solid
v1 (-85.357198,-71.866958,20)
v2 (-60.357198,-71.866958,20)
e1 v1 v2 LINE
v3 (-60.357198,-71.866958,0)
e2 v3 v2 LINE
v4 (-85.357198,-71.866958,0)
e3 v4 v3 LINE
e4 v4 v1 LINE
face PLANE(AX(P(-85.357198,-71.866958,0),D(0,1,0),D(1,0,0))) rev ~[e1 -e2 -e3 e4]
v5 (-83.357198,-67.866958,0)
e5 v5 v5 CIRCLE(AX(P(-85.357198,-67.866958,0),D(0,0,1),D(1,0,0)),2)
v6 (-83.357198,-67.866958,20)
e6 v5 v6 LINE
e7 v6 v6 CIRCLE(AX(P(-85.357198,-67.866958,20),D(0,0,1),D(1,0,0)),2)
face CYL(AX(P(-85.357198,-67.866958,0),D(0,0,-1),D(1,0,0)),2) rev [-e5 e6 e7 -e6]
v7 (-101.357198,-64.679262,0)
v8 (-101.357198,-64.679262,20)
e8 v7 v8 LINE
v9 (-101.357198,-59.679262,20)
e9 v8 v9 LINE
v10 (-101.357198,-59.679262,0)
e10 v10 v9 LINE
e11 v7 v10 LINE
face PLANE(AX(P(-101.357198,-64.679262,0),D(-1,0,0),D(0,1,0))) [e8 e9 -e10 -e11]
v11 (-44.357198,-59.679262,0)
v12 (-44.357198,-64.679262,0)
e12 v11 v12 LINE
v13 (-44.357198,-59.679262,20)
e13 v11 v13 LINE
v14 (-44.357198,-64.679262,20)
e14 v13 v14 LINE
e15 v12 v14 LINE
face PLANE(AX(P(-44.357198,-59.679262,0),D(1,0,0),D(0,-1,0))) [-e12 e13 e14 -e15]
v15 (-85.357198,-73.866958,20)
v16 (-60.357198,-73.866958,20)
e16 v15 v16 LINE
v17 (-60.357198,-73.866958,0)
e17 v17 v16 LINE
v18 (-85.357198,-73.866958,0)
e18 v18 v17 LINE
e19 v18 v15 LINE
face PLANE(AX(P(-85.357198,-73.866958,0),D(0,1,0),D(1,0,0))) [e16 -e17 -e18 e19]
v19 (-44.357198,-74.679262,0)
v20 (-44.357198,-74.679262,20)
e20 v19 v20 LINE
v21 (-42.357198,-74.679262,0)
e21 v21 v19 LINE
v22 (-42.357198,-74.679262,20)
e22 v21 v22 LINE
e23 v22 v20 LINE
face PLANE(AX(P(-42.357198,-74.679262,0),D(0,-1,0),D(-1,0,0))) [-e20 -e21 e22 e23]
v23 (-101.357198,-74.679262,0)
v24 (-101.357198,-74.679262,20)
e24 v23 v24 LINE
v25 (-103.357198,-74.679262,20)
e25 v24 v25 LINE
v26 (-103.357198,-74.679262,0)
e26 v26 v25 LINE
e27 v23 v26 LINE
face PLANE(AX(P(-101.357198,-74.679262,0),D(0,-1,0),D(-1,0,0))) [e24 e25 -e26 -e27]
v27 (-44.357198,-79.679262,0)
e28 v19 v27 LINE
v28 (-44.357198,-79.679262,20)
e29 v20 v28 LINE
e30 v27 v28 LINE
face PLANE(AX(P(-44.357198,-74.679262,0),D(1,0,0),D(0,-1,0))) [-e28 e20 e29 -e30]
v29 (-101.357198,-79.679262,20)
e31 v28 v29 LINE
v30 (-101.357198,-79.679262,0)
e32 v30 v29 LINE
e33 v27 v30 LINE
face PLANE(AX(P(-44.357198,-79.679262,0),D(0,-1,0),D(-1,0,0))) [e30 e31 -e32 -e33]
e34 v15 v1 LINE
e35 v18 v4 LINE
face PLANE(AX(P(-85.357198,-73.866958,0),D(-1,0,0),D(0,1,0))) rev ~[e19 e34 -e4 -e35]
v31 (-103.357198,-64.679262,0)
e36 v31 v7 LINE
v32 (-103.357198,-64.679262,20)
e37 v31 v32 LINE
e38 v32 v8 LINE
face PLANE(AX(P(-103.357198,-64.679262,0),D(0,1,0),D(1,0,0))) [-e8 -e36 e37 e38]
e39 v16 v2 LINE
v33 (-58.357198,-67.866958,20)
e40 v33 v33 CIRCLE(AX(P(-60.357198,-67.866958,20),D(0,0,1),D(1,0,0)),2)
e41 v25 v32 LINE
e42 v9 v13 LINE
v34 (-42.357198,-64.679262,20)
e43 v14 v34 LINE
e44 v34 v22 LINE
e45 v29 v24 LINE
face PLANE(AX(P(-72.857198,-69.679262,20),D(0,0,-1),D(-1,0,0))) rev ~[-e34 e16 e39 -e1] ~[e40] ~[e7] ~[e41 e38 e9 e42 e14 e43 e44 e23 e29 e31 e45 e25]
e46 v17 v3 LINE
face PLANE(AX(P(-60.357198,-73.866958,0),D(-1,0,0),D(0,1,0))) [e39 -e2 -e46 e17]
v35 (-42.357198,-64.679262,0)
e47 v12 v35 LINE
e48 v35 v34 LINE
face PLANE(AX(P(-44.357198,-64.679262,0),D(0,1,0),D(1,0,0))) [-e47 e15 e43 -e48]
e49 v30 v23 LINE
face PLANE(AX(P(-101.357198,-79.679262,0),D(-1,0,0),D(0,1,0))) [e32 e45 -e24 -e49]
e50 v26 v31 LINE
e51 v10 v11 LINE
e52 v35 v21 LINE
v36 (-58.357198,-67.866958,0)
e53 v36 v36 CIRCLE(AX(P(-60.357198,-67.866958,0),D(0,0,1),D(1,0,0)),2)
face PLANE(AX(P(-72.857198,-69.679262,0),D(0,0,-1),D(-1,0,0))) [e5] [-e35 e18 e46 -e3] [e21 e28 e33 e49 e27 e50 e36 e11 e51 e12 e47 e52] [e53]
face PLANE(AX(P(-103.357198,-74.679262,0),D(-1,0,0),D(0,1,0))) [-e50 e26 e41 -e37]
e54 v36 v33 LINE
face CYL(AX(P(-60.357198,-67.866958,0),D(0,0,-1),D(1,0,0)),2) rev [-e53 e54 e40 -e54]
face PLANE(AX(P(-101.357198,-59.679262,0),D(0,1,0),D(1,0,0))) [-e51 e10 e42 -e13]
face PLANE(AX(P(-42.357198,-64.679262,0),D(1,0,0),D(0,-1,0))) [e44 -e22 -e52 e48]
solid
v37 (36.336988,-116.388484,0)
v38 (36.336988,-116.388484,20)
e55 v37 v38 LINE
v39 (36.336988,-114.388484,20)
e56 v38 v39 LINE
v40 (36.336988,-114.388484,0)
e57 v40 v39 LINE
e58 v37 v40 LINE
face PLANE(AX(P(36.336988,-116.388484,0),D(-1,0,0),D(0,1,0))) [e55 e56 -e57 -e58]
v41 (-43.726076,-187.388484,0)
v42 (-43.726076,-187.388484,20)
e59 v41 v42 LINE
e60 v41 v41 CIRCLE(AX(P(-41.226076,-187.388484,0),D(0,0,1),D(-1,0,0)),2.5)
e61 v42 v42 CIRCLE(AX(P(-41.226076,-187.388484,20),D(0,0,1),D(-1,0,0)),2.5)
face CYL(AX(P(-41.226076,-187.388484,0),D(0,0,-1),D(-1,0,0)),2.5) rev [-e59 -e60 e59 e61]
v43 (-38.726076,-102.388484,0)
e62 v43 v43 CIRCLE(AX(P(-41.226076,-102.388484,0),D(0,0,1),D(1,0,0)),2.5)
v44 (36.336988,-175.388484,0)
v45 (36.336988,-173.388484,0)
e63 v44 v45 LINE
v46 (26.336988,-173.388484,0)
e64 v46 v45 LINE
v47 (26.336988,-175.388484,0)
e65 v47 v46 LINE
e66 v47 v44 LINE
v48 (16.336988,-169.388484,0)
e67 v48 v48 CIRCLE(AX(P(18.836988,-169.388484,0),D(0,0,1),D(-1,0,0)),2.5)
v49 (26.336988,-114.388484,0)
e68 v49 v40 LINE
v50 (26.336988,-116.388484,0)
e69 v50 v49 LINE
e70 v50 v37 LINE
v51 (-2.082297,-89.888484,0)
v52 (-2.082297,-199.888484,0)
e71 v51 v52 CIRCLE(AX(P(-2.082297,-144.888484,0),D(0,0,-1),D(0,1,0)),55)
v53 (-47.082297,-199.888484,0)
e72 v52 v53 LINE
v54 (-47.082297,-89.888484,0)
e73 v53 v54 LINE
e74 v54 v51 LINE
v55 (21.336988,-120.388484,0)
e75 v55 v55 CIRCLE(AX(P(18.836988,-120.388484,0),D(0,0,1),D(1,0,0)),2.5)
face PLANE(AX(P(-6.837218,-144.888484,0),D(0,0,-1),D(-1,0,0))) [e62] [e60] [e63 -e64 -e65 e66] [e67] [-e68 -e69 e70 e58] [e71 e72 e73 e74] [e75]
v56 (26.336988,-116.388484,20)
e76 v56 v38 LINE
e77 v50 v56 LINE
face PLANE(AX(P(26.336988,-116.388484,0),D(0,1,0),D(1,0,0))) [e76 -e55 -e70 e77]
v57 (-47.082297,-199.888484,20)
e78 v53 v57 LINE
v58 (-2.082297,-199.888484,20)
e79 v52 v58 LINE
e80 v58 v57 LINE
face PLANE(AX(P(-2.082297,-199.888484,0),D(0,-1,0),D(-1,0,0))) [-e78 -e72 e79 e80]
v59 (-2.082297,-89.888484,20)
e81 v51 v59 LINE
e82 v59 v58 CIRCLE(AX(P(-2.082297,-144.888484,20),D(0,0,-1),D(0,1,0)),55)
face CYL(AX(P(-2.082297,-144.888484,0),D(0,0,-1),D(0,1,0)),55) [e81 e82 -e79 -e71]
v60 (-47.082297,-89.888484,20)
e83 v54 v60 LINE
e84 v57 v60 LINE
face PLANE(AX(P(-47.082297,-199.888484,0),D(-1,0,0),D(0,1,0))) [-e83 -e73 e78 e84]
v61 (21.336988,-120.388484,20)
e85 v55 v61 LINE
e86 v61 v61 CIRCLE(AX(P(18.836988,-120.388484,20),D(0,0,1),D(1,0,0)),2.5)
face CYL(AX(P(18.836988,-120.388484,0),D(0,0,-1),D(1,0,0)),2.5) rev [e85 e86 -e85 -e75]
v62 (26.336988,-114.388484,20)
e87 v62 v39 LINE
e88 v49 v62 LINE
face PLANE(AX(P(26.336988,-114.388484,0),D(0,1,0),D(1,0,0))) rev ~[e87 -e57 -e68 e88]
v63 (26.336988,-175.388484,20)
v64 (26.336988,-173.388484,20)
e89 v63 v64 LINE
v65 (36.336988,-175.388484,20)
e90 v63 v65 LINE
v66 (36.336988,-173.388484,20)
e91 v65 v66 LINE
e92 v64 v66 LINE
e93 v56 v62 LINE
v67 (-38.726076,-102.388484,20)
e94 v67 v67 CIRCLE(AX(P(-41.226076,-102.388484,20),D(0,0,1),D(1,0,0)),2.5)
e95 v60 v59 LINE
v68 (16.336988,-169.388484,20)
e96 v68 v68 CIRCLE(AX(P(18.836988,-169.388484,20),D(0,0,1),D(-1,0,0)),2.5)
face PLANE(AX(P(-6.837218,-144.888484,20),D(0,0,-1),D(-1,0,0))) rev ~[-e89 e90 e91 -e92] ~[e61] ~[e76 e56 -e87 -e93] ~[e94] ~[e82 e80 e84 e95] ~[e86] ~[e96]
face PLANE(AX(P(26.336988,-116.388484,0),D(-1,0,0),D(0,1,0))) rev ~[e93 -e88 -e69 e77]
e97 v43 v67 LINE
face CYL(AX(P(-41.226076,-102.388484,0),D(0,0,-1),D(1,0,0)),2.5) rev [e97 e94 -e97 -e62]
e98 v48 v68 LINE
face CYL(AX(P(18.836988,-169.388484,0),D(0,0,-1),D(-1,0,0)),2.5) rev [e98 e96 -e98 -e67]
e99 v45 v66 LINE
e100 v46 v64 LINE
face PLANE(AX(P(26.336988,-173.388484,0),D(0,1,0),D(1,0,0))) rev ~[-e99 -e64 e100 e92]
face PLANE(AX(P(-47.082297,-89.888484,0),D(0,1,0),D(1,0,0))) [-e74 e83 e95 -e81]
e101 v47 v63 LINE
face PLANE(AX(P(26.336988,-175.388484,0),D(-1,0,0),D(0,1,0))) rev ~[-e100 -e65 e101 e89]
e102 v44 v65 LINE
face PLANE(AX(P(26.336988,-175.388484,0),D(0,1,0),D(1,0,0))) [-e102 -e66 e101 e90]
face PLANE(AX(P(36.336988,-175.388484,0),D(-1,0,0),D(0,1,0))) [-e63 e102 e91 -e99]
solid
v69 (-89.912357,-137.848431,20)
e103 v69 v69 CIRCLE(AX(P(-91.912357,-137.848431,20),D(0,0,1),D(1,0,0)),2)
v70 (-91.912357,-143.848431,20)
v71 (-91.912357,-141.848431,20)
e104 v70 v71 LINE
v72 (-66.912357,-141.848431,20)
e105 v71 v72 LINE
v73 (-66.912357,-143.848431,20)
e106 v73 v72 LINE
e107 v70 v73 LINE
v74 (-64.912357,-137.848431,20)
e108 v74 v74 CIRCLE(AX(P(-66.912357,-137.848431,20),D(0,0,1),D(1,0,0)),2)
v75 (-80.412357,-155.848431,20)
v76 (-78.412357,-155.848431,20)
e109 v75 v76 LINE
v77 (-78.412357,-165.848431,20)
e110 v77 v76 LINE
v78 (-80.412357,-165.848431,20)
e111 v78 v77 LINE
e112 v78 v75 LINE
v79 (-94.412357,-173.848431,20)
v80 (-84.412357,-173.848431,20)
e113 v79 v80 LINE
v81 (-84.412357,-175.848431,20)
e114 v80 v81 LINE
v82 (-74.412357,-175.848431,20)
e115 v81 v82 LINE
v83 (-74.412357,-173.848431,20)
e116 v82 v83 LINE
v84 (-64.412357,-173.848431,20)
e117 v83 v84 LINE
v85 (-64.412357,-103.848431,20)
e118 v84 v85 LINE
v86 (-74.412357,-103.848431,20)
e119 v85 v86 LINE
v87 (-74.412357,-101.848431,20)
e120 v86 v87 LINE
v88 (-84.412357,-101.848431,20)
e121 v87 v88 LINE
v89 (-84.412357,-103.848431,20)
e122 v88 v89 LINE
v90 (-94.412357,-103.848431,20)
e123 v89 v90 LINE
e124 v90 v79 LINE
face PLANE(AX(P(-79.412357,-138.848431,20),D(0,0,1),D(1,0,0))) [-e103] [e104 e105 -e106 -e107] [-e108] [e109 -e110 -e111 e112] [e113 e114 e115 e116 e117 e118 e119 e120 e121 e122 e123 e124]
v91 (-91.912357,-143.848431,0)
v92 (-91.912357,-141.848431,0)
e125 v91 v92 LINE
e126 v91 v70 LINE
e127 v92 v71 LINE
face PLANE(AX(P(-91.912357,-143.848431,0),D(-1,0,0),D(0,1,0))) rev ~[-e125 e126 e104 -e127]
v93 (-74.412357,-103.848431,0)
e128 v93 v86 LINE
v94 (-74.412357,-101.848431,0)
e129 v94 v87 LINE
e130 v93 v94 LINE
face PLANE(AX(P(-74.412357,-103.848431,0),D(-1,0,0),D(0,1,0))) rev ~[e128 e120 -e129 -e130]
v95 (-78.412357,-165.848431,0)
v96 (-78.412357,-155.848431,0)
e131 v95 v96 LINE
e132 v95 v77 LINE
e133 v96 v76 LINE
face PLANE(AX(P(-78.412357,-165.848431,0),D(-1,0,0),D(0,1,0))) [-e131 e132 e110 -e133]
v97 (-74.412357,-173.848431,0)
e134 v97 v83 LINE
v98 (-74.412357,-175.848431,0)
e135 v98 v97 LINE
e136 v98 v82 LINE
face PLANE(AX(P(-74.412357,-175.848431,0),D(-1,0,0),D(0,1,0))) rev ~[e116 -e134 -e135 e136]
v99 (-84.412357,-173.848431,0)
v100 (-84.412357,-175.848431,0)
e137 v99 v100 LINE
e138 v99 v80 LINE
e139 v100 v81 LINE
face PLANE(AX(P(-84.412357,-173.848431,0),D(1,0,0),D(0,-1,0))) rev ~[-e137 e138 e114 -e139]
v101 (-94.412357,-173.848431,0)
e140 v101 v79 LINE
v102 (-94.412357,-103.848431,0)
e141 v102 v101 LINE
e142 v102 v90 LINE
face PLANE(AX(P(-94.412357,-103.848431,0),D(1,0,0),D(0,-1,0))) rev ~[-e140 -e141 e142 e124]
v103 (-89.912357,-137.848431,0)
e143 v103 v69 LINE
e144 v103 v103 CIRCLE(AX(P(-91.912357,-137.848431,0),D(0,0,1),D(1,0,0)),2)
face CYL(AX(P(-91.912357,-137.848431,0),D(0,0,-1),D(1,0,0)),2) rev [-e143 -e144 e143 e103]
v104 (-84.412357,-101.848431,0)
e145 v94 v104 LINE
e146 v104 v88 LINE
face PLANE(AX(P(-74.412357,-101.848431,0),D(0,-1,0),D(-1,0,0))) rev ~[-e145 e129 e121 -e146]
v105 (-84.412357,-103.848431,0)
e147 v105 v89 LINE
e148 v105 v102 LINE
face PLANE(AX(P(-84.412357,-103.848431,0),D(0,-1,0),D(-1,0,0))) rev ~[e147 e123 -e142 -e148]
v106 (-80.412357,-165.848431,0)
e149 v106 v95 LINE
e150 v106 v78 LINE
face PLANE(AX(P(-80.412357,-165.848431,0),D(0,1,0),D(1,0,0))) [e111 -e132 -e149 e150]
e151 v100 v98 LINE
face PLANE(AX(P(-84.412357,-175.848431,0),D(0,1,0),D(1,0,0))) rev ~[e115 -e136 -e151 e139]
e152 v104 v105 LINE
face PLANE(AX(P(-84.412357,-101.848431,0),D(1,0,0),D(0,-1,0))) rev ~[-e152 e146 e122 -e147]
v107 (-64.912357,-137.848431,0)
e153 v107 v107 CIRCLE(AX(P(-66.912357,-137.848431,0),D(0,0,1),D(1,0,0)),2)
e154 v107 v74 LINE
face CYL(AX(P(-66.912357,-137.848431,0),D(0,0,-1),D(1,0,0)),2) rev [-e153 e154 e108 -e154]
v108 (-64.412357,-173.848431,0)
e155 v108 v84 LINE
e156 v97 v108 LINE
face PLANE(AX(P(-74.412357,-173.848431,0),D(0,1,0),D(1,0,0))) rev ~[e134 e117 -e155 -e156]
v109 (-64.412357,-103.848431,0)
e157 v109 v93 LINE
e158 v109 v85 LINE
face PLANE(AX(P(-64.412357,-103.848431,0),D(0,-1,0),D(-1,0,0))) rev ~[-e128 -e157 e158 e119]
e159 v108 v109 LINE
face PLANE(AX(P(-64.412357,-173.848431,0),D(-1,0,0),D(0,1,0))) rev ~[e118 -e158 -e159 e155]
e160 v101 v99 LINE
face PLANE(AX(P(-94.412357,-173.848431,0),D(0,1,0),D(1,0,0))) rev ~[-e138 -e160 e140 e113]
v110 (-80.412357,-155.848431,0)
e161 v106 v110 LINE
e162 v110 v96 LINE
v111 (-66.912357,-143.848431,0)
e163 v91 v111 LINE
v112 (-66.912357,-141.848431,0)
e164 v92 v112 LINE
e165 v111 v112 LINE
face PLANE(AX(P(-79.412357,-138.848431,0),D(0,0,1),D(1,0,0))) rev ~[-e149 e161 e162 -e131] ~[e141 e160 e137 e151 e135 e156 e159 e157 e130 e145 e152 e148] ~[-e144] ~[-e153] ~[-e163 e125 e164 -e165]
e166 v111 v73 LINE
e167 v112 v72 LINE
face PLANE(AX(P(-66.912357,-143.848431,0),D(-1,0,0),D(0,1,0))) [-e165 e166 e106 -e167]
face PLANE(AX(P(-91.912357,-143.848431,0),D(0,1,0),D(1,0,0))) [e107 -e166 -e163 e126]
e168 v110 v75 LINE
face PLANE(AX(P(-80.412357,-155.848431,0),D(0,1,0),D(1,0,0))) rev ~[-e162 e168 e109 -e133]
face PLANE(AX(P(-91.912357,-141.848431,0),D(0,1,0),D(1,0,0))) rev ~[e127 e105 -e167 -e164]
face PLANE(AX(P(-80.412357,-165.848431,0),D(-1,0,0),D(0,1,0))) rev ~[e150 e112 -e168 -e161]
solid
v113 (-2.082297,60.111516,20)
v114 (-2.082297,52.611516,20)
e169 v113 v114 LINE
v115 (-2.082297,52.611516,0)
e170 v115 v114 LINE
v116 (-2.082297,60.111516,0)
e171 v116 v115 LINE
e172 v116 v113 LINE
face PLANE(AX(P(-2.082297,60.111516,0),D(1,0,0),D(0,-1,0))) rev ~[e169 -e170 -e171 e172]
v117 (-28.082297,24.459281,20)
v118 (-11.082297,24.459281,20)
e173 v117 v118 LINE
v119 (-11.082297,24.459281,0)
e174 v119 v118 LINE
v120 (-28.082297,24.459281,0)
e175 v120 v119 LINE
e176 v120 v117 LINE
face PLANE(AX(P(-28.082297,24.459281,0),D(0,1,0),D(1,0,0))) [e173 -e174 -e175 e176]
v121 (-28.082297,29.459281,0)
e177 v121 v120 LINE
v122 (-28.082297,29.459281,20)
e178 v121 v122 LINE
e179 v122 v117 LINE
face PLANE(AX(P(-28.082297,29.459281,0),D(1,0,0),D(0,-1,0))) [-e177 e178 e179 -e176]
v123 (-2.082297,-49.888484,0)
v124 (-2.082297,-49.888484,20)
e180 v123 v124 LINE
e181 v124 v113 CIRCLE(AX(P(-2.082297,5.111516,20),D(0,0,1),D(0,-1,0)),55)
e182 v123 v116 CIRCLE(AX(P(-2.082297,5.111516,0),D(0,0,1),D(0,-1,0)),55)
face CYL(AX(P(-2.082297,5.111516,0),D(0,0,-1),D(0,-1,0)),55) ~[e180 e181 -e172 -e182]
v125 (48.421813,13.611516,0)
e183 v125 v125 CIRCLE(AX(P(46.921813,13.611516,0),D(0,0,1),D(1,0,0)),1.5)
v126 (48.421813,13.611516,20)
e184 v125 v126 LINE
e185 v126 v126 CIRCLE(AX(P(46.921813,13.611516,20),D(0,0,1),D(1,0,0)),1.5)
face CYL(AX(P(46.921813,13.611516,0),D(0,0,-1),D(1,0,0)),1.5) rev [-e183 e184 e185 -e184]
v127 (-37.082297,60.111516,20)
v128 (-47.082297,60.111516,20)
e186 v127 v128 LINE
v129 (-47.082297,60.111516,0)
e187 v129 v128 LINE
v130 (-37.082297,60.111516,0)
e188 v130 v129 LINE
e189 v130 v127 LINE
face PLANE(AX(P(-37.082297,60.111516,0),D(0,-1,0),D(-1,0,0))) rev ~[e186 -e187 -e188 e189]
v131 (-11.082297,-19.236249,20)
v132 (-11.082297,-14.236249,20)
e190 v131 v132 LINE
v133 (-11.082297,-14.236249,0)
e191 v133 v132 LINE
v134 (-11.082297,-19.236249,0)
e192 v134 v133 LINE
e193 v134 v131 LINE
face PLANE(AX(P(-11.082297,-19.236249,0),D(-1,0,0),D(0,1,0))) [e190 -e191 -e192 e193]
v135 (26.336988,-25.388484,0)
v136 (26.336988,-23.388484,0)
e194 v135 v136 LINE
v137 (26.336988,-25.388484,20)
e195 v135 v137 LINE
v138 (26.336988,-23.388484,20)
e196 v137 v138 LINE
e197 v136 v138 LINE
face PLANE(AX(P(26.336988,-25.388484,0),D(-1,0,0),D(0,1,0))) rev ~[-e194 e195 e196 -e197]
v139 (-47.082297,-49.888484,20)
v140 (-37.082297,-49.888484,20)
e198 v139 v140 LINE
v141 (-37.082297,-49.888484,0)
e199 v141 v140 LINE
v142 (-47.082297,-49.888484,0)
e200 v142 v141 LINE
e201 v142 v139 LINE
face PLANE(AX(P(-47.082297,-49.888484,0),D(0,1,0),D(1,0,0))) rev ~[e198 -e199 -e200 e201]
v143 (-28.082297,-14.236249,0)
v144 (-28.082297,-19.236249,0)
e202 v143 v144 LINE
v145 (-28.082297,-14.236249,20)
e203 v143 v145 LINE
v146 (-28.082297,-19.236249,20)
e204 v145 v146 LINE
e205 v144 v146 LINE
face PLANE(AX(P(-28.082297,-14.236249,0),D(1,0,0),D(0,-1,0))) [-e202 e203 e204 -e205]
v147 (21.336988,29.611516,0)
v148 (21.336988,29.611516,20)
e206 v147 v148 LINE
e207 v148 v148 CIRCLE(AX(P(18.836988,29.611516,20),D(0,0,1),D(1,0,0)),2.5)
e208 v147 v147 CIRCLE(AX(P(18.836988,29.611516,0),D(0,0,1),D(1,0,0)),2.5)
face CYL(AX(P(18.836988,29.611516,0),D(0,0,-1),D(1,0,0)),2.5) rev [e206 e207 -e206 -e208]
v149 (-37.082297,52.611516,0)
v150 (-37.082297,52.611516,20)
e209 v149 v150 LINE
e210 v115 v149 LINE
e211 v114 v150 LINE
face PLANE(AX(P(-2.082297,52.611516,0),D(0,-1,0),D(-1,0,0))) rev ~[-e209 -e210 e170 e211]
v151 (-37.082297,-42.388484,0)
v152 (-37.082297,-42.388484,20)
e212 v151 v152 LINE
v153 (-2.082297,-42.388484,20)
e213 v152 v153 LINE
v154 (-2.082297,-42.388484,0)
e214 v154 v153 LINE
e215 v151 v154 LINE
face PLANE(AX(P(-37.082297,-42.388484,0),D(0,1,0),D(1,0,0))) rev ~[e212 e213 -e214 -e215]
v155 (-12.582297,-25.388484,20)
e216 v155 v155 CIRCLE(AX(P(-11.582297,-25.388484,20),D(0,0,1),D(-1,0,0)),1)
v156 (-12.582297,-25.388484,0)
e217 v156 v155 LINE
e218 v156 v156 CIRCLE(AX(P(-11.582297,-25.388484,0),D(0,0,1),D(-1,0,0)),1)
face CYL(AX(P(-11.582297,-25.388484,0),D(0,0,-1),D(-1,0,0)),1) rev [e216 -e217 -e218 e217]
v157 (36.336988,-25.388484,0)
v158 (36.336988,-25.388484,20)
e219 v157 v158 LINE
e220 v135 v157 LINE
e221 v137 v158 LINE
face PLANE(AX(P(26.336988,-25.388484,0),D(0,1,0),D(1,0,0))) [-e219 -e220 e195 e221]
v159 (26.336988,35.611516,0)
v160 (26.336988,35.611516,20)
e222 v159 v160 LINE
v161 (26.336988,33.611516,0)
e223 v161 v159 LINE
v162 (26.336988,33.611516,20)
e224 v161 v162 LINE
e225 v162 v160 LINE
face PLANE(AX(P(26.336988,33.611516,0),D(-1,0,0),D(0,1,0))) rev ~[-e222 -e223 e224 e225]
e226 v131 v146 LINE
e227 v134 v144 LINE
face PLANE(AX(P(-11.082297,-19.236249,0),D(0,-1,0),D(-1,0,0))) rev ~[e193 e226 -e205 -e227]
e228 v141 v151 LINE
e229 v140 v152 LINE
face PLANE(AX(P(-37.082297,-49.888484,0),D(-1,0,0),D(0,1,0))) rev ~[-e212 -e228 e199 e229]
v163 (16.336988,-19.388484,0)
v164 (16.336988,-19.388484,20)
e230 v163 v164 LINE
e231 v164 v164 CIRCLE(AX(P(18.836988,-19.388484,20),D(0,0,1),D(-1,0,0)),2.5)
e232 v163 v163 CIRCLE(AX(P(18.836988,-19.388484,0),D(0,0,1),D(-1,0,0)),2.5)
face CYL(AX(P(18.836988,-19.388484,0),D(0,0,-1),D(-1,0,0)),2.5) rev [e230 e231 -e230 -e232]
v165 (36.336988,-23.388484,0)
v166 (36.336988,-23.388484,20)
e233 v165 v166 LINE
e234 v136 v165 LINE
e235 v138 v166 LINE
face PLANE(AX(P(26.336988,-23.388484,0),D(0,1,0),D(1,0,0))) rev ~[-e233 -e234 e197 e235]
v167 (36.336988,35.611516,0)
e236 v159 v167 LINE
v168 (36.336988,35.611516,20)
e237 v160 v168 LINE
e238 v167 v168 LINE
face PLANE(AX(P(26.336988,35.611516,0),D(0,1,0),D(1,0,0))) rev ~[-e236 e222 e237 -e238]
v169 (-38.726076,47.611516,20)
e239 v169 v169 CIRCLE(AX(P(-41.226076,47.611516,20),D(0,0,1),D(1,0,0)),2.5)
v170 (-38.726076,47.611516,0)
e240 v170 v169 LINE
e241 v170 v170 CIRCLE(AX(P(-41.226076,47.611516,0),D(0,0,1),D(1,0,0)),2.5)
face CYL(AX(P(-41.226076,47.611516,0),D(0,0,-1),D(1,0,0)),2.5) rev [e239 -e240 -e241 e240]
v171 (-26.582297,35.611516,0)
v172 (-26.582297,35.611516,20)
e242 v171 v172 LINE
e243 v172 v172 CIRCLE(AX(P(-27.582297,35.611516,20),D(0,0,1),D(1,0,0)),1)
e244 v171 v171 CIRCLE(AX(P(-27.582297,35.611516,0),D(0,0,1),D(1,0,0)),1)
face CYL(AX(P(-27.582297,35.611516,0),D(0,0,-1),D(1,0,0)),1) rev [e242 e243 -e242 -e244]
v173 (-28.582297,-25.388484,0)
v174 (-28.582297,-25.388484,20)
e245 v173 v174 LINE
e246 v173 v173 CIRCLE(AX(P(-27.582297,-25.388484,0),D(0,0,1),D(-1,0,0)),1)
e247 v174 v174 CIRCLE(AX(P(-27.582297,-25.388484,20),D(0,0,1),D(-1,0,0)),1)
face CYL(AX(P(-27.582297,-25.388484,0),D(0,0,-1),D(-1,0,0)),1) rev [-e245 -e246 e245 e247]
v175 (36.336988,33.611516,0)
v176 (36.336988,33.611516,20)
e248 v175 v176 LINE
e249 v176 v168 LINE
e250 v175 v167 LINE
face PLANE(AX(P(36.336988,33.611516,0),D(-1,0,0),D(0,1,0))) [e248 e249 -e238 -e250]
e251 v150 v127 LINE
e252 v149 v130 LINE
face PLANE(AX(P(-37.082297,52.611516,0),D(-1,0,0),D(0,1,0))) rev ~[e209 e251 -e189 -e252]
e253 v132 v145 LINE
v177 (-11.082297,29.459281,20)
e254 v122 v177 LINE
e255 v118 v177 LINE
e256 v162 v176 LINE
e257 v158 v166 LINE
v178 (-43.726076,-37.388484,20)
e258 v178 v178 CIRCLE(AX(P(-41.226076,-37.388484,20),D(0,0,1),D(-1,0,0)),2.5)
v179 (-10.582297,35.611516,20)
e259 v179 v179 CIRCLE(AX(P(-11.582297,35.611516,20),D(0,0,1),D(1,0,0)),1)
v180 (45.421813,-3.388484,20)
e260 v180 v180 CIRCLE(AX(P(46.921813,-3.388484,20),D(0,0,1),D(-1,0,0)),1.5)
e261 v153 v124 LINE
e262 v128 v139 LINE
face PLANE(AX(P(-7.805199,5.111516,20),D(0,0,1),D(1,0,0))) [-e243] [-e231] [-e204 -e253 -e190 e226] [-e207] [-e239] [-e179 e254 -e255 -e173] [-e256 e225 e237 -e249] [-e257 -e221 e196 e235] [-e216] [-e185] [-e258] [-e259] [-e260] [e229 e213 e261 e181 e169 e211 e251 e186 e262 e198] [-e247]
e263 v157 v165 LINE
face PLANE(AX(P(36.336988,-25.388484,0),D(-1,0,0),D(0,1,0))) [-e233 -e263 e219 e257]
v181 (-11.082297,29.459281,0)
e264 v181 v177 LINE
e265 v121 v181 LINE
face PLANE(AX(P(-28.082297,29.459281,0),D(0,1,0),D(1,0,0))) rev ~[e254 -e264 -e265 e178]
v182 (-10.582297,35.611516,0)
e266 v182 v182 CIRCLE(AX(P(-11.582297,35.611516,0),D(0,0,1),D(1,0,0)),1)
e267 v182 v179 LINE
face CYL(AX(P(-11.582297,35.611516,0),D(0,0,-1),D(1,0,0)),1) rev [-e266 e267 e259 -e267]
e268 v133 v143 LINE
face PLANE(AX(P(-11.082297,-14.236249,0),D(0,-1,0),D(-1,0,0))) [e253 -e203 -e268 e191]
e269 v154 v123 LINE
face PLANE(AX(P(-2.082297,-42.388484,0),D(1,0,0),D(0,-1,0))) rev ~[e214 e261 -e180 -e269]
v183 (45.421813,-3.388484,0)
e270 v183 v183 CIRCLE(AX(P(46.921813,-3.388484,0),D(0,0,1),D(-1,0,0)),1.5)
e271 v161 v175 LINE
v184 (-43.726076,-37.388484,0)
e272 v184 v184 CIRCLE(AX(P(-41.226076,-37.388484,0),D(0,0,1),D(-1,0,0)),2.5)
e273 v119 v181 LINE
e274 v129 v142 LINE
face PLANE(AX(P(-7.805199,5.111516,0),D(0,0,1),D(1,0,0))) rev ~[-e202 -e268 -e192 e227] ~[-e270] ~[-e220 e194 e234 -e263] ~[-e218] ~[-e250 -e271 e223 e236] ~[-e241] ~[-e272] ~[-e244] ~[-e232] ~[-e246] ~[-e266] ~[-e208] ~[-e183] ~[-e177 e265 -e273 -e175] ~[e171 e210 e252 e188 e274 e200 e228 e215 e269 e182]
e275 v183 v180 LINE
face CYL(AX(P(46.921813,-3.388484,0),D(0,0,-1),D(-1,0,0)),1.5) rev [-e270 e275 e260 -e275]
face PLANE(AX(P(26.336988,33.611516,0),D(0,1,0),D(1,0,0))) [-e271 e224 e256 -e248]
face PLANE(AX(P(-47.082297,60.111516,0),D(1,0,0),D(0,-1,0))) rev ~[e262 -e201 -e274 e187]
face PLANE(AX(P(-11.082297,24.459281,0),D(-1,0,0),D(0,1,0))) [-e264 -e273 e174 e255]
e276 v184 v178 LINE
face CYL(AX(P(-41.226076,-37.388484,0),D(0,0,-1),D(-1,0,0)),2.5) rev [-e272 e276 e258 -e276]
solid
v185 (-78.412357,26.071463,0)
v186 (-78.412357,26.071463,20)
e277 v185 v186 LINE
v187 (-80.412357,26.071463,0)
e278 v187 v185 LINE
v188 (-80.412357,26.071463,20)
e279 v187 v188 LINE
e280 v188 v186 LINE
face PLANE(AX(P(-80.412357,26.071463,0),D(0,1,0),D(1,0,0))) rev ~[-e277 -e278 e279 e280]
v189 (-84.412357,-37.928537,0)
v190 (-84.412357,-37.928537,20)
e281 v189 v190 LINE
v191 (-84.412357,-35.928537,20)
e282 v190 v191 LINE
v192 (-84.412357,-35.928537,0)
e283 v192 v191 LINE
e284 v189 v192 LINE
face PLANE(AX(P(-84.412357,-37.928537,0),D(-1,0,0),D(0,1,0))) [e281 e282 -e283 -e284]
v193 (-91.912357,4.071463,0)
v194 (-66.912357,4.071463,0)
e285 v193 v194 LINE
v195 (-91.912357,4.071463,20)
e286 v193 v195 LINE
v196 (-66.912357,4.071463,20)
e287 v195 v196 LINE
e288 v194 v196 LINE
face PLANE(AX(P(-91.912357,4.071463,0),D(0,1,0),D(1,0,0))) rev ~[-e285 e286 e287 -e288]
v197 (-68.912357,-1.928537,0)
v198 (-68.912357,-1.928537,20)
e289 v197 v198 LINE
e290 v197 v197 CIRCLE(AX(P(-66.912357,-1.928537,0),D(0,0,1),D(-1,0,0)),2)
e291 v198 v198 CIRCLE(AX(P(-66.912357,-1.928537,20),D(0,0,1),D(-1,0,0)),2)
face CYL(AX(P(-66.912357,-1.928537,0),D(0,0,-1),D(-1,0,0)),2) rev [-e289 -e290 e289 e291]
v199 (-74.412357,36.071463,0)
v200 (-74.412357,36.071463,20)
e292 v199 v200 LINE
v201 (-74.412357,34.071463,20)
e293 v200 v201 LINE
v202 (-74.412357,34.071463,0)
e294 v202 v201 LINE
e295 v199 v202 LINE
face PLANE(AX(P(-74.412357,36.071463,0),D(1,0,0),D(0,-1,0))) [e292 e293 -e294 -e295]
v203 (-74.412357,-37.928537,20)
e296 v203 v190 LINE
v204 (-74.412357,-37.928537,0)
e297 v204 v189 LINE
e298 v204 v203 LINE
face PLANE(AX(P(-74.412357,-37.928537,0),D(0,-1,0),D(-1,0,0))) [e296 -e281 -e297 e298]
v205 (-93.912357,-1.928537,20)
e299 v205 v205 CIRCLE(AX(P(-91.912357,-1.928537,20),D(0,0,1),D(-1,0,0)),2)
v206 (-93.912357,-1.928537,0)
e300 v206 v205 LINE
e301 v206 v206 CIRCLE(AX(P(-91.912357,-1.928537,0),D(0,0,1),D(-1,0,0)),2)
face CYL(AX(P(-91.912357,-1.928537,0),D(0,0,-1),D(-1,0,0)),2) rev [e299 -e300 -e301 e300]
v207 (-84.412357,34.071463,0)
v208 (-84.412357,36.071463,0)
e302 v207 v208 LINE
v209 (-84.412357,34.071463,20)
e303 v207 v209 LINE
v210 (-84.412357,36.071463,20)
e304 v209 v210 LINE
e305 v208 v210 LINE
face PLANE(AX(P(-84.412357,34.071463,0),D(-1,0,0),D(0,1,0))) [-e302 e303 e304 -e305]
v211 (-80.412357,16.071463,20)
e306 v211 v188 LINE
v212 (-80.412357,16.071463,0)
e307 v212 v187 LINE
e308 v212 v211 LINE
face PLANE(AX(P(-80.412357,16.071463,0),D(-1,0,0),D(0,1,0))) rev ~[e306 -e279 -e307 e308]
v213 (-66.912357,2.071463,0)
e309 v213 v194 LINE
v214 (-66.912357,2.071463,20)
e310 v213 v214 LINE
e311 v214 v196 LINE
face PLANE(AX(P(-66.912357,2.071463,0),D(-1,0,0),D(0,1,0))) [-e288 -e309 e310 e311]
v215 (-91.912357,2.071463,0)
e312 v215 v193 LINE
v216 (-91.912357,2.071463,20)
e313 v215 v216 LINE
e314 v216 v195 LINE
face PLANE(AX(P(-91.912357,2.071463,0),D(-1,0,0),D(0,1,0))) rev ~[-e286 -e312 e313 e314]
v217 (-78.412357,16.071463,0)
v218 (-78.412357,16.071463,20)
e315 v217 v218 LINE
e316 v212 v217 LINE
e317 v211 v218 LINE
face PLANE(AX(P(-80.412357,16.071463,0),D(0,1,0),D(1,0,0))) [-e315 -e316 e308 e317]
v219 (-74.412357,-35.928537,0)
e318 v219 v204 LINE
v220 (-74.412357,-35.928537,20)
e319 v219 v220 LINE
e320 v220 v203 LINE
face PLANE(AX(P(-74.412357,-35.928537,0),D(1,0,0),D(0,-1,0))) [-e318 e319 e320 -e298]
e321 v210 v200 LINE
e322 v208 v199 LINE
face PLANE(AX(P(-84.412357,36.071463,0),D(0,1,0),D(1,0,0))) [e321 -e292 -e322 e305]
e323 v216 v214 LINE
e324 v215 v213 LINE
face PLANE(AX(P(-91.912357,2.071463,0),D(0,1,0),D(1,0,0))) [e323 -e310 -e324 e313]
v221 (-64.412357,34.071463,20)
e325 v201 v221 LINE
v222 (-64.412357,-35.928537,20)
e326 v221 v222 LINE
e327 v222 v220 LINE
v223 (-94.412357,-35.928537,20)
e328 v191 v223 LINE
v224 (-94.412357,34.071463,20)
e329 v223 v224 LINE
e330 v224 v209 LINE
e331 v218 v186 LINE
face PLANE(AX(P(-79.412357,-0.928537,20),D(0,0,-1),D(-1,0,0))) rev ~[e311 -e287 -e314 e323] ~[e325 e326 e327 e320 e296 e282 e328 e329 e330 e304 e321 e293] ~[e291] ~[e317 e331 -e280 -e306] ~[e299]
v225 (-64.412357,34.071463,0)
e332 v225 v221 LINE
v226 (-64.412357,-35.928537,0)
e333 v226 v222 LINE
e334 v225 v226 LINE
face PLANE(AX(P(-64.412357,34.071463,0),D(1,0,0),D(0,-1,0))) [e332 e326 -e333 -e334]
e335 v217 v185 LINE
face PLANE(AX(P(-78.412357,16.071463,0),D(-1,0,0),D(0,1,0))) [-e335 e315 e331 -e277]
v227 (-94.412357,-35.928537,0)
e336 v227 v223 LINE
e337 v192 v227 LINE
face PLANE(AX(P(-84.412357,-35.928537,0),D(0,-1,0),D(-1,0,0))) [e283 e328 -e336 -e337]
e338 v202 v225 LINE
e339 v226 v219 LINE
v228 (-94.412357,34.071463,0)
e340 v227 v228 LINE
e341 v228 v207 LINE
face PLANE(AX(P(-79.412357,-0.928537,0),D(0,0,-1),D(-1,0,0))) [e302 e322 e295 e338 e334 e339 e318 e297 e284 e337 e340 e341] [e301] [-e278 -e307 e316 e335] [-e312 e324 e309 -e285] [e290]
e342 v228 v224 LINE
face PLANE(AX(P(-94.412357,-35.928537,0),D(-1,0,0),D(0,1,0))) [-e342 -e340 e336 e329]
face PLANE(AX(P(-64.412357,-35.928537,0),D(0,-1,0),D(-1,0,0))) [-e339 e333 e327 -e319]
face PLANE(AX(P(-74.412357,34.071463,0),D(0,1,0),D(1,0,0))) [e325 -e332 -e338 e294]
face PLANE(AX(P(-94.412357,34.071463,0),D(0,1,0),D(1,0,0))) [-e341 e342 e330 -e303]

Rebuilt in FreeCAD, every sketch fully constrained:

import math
import FreeCAD as App
import Part
import Sketcher
from FreeCAD import Vector
Q = App.Units.Quantity


def add_polygon(sketch, points):
    """Adds a closed chain of lines whose ends are joined by coincident constraints."""
    first, n = sketch.GeometryCount, len(points)
    for a, b in zip(points, points[1:] + points[:1]):
        sketch.addGeometry(Part.LineSegment(App.Vector(*a, 0), App.Vector(*b, 0)), False)
    for i in range(n):
        sketch.addConstraint(Sketcher.Constraint("Coincident", first + i, 2, first + (i + 1) % n, 1))

doc = App.newDocument("Part")
body = doc.addObject("PartDesign::Body", "Body")

# Sketch on XY plane
sketch1 = doc.addObject("Sketcher::SketchObject", "Sketch")
body.addObject(sketch1)
sketch1.AttachmentSupport = (doc.XY_Plane, [""])
sketch1.MapMode = "FlatFace"
sketch1.addGeometry(Part.LineSegment(Vector(-47.082297, 60.111516, 0), Vector(-47.082297, -49.888484, 0)), False)  # 0
sketch1.addGeometry(Part.LineSegment(Vector(-47.082297, -49.888484, 0), Vector(-37.082297, -49.888484, 0)), False)  # 1
sketch1.addGeometry(Part.LineSegment(Vector(-37.082297, -49.888484, 0), Vector(-37.082297, -42.388484, 0)), False)  # 2
sketch1.addGeometry(Part.LineSegment(Vector(-37.082297, -42.388484, 0), Vector(-2.082297, -42.388484, 0)), False)  # 3
sketch1.addGeometry(Part.LineSegment(Vector(-2.082297, -42.388484, 0), Vector(-2.082297, -49.888484, 0)), False)  # 4
sketch1.addGeometry(Part.ArcOfCircle(Part.Circle(Vector(-2.082297, 5.111516, 0), Vector(0, 0, 1), 55), math.radians(-90), math.radians(90)), False)  # 5
sketch1.addGeometry(Part.LineSegment(Vector(-2.082297, 60.111516, 0), Vector(-2.082297, 52.611516, 0)), False)  # 6
sketch1.addGeometry(Part.LineSegment(Vector(-2.082297, 52.611516, 0), Vector(-37.082297, 52.611516, 0)), False)  # 7
sketch1.addGeometry(Part.LineSegment(Vector(-37.082297, 52.611516, 0), Vector(-37.082297, 60.111516, 0)), False)  # 8
sketch1.addGeometry(Part.LineSegment(Vector(-37.082297, 60.111516, 0), Vector(-47.082297, 60.111516, 0)), False)  # 9
sketch1.addGeometry(Part.Circle(Vector(-41.226076, -37.388484, 0), Vector(0, 0, 1), 2.5), False)  # 10
sketch1.addGeometry(Part.Circle(Vector(-27.582297, -25.388484, 0), Vector(0, 0, 1), 1), False)  # 11
sketch1.addGeometry(Part.Circle(Vector(-11.582297, -25.388484, 0), Vector(0, 0, 1), 1), False)  # 12
add_polygon(sketch1, [(-28.082297, -19.236249), (-28.082297, -14.236249), (-11.082297, -14.236249), (-11.082297, -19.236249)])  # lines 13-16
sketch1.addGeometry(Part.Circle(Vector(18.836988, -19.388484, 0), Vector(0, 0, 1), 2.5), False)  # 17
add_polygon(sketch1, [(36.336988, -25.388484), (26.336988, -25.388484), (26.336988, -23.388484), (36.336988, -23.388484)])  # lines 18-21
sketch1.addGeometry(Part.Circle(Vector(46.921813, -3.388484, 0), Vector(0, 0, 1), 1.5), False)  # 22
add_polygon(sketch1, [(-28.082297, 29.459281), (-11.082297, 29.459281), (-11.082297, 24.459281), (-28.082297, 24.459281)])  # lines 23-26
sketch1.addGeometry(Part.Circle(Vector(-27.582297, 35.611516, 0), Vector(0, 0, 1), 1), False)  # 27
sketch1.addGeometry(Part.Circle(Vector(-41.226076, 47.611516, 0), Vector(0, 0, 1), 2.5), False)  # 28
sketch1.addGeometry(Part.Circle(Vector(-11.582297, 35.611516, 0), Vector(0, 0, 1), 1), False)  # 29
sketch1.addGeometry(Part.Circle(Vector(46.921813, 13.611516, 0), Vector(0, 0, 1), 1.5), False)  # 30
sketch1.addGeometry(Part.Circle(Vector(18.836988, 29.611516, 0), Vector(0, 0, 1), 2.5), False)  # 31
add_polygon(sketch1, [(36.336988, 33.611516), (26.336988, 33.611516), (26.336988, 35.611516), (36.336988, 35.611516)])  # lines 32-35
sketch1.addConstraint([
    Sketcher.Constraint("Coincident", 0, 2, 1, 1),
    Sketcher.Constraint("Coincident", 1, 2, 2, 1),
    Sketcher.Constraint("Coincident", 2, 2, 3, 1),
    Sketcher.Constraint("Coincident", 3, 2, 4, 1),
    Sketcher.Constraint("Coincident", 4, 2, 5, 1),
    Sketcher.Constraint("Coincident", 5, 2, 6, 1),
    Sketcher.Constraint("Coincident", 6, 2, 7, 1),
    Sketcher.Constraint("Coincident", 7, 2, 8, 1),
    Sketcher.Constraint("Coincident", 8, 2, 9, 1),
    Sketcher.Constraint("Coincident", 9, 2, 0, 1),
    Sketcher.Constraint("Vertical", 0),
    Sketcher.Constraint("Horizontal", 1),
    Sketcher.Constraint("Vertical", 2),
    Sketcher.Constraint("Horizontal", 3),
    Sketcher.Constraint("Vertical", 4),
    Sketcher.Constraint("Vertical", 6),
    Sketcher.Constraint("Horizontal", 7),
    Sketcher.Constraint("Vertical", 8),
    Sketcher.Constraint("Horizontal", 9),
    Sketcher.Constraint("Vertical", 13),
    Sketcher.Constraint("Horizontal", 14),
    Sketcher.Constraint("Vertical", 15),
    Sketcher.Constraint("Horizontal", 16),
    Sketcher.Constraint("Horizontal", 18),
    Sketcher.Constraint("Vertical", 19),
    Sketcher.Constraint("Horizontal", 20),
    Sketcher.Constraint("Vertical", 21),
    Sketcher.Constraint("Horizontal", 23),
    Sketcher.Constraint("Vertical", 24),
    Sketcher.Constraint("Horizontal", 25),
    Sketcher.Constraint("Vertical", 26),
    Sketcher.Constraint("Horizontal", 32),
    Sketcher.Constraint("Vertical", 33),
    Sketcher.Constraint("Horizontal", 34),
    Sketcher.Constraint("Vertical", 35),
    Sketcher.Constraint("Equal", 11, 12),
    Sketcher.Constraint("Equal", 10, 17),
    Sketcher.Constraint("Equal", 12, 27),
    Sketcher.Constraint("Equal", 17, 28),
    Sketcher.Constraint("Equal", 27, 29),
    Sketcher.Constraint("Equal", 22, 30),
    Sketcher.Constraint("Equal", 28, 31),
    Sketcher.Constraint("Horizontal", 11, 3, 12, 3),
    Sketcher.Constraint("Horizontal", 27, 3, 29, 3),
    Sketcher.Constraint("Horizontal", 1, 2, 4, 2),
    Sketcher.Constraint("Horizontal", 5, 2, 8, 2),
    Sketcher.Constraint("Horizontal", 12, 3, 18, 2),
    Sketcher.Constraint("Horizontal", 29, 3, 33, 2),
    Sketcher.Constraint("Vertical", 11, 3, 27, 3),
    Sketcher.Constraint("Vertical", 10, 3, 28, 3),
    Sketcher.Constraint("Vertical", 12, 3, 29, 3),
    Sketcher.Constraint("Vertical", 22, 3, 30, 3),
    Sketcher.Constraint("Vertical", 17, 3, 31, 3),
    Sketcher.Constraint("Vertical", 5, 3, 3, 2),
    Sketcher.Constraint("Vertical", 4, 2, 5, 2),
    Sketcher.Constraint("Vertical", 2, 2, 7, 2),
    Sketcher.Constraint("Vertical", 15, 2, 23, 2),
    Sketcher.Constraint("Vertical", 16, 2, 25, 2),
    Sketcher.Constraint("Vertical", 19, 2, 32, 2),
    Sketcher.Constraint("Vertical", 21, 2, 34, 2),
    Sketcher.Constraint("Equal", 9, 18),
    Sketcher.Constraint("Equal", 4, 6),
    Sketcher.Constraint("Equal", 15, 24),
    Sketcher.Constraint("Equal", 21, 33),
    Sketcher.Constraint("Diameter", 10, Q("5 mm")),
    Sketcher.Constraint("Diameter", 11, Q("2 mm")),
    Sketcher.Constraint("Diameter", 22, Q("3 mm")),
    Sketcher.Constraint("Radius", 5, Q("55 mm")),
    Sketcher.Constraint("DistanceX", 1, 1, 1, 2, Q("10 mm")),
    Sketcher.Constraint("DistanceX", 3, 1, 3, 2, Q("35 mm")),
    Sketcher.Constraint("DistanceX", 14, 1, 14, 2, Q("17 mm")),
    Sketcher.Constraint("DistanceY", 13, 1, 13, 2, Q("5 mm")),
    Sketcher.Constraint("DistanceY", 19, 1, 19, 2, Q("2 mm")),
    Sketcher.Constraint("DistanceY", 2, 1, 2, 2, Q("7.5 mm")),
    Sketcher.Constraint("DistanceY", 10, 3, 11, 3, Q("12 mm")),
    Sketcher.Constraint("DistanceX", 11, 3, 12, 3, Q("16 mm")),
    Sketcher.Constraint("DistanceY", 12, 3, 17, 3, Q("6 mm")),
    Sketcher.Constraint("DistanceY", 17, 3, 22, 3, Q("16 mm")),
    Sketcher.Constraint("DistanceY", 11, 3, 27, 3, Q("61 mm")),
    Sketcher.Constraint("DistanceY", 27, 3, 28, 3, Q("12 mm")),
    Sketcher.Constraint("DistanceY", 22, 3, 30, 3, Q("17 mm")),
    Sketcher.Constraint("DistanceY", 31, 3, 29, 3, Q("6 mm")),
    Sketcher.Constraint("DistanceY", 2, 2, 10, 3, Q("5 mm")),
    Sketcher.Constraint("DistanceX", 2, 2, 13, 2, Q("9 mm")),
    Sketcher.Constraint("DistanceX", 11, 3, 5, 3, Q("25.5 mm")),
    Sketcher.Constraint("DistanceX", 17, 3, 18, 2, Q("7.5 mm")),
    Sketcher.Constraint("DistanceY", 13, 2, -1, 1, Q("14.236249 mm")),
    Sketcher.Constraint("DistanceY", -1, 1, 23, 2, Q("29.459281 mm")),
    Sketcher.Constraint("DistanceX", 10, 3, 5, 3, Q("39.143779 mm")),
    Sketcher.Constraint("DistanceX", 5, 3, 22, 3, Q("49.004109 mm")),
    Sketcher.Constraint("DistanceX", 5, 3, -1, 1, Q("2.082297 mm")),
    Sketcher.Constraint("DistanceY", -1, 1, 5, 3, Q("5.111516 mm")),
    Sketcher.Constraint("DistanceX", -1, 1, 17, 3, Q("18.836988 mm")),
])
pad1 = doc.addObject("PartDesign::Pad", "Pad")
body.addObject(pad1)
pad1.Profile = sketch1
pad1.Length = 20
body2 = doc.addObject("PartDesign::Body", "Body001")

# Sketch on XY plane
sketch2 = doc.addObject("Sketcher::SketchObject", "Sketch001")
body2.addObject(sketch2)
sketch2.AttachmentSupport = (doc.getObject("XY_Plane001"), [""])
sketch2.MapMode = "FlatFace"
add_polygon(sketch2, [(-94.412357, -103.848431), (-94.412357, -173.848431), (-84.412357, -173.848431), (-84.412357, -175.848431), (-74.412357, -175.848431), (-74.412357, -173.848431), (-64.412357, -173.848431), (-64.412357, -103.848431), (-74.412357, -103.848431), (-74.412357, -101.848431), (-84.412357, -101.848431), (-84.412357, -103.848431)])  # lines 0-11
add_polygon(sketch2, [(-78.412357, -165.848431), (-80.412357, -165.848431), (-80.412357, -155.848431), (-78.412357, -155.848431)])  # lines 12-15
sketch2.addGeometry(Part.Circle(Vector(-91.912357, -137.848431, 0), Vector(0, 0, 1), 2), False)  # 16
add_polygon(sketch2, [(-66.912357, -143.848431), (-91.912357, -143.848431), (-91.912357, -141.848431), (-66.912357, -141.848431)])  # lines 17-20
sketch2.addGeometry(Part.Circle(Vector(-66.912357, -137.848431, 0), Vector(0, 0, 1), 2), False)  # 21
sketch2.addConstraint([
    Sketcher.Constraint("Vertical", 0),
    Sketcher.Constraint("Horizontal", 1),
    Sketcher.Constraint("Vertical", 2),
    Sketcher.Constraint("Horizontal", 3),
    Sketcher.Constraint("Vertical", 4),
    Sketcher.Constraint("Horizontal", 5),
    Sketcher.Constraint("Vertical", 6),
    Sketcher.Constraint("Horizontal", 7),
    Sketcher.Constraint("Vertical", 8),
    Sketcher.Constraint("Horizontal", 9),
    Sketcher.Constraint("Vertical", 10),
    Sketcher.Constraint("Horizontal", 11),
    Sketcher.Constraint("Horizontal", 12),
    Sketcher.Constraint("Vertical", 13),
    Sketcher.Constraint("Horizontal", 14),
    Sketcher.Constraint("Vertical", 15),
    Sketcher.Constraint("Horizontal", 17),
    Sketcher.Constraint("Vertical", 18),
    Sketcher.Constraint("Horizontal", 19),
    Sketcher.Constraint("Vertical", 20),
    Sketcher.Constraint("Equal", 16, 21),
    Sketcher.Constraint("Horizontal", 16, 3, 21, 3),
    Sketcher.Constraint("Horizontal", 1, 2, 4, 2),
    Sketcher.Constraint("Horizontal", 7, 2, 10, 2),
    Sketcher.Constraint("Vertical", 4, 2, 7, 2),
    Sketcher.Constraint("Vertical", 2, 2, 9, 2),
    Sketcher.Constraint("Vertical", 16, 3, 17, 2),
    Sketcher.Constraint("Vertical", 21, 3, 19, 2),
    Sketcher.Constraint("Equal", 1, 3),
    Sketcher.Constraint("Equal", 3, 5),
    Sketcher.Constraint("Equal", 14, 2),
    Sketcher.Constraint("Equal", 4, 8),
    Sketcher.Constraint("Equal", 11, 13),
    Sketcher.Constraint("Equal", 10, 18),
    Sketcher.Constraint("Diameter", 16, Q("4 mm")),
    Sketcher.Constraint("DistanceX", 1, 1, 1, 2, Q("10 mm")),
    Sketcher.Constraint("DistanceX", 12, 2, 12, 1, Q("2 mm")),
    Sketcher.Constraint("DistanceX", 17, 2, 17, 1, Q("25 mm")),
    Sketcher.Constraint("DistanceY", 0, 2, 0, 1, Q("70 mm")),
    Sketcher.Constraint("DistanceY", 0, 2, 16, 3, Q("36 mm")),
    Sketcher.Constraint("DistanceX", 1, 2, 12, 2, Q("4 mm")),
    Sketcher.Constraint("DistanceY", 1, 2, 12, 2, Q("8 mm")),
    Sketcher.Constraint("DistanceY", 17, 2, 16, 3, Q("6 mm")),
    Sketcher.Constraint("DistanceX", 0, 2, 16, 3, Q("2.5 mm")),
    Sketcher.Constraint("DistanceY", 16, 3, -1, 1, Q("137.848431 mm")),
    Sketcher.Constraint("DistanceX", 16, 3, -1, 1, Q("91.912357 mm")),
])
pad2 = doc.addObject("PartDesign::Pad", "Pad001")
body2.addObject(pad2)
pad2.Profile = sketch2
pad2.Length = 20
body3 = doc.addObject("PartDesign::Body", "Body002")

# Sketch on XY plane
sketch3 = doc.addObject("Sketcher::SketchObject", "Sketch002")
body3.addObject(sketch3)
sketch3.AttachmentSupport = (doc.getObject("XY_Plane002"), [""])
sketch3.MapMode = "FlatFace"
sketch3.addGeometry(Part.LineSegment(Vector(-2.082297, -89.888484, 0), Vector(-47.082297, -89.888484, 0)), False)  # 0
sketch3.addGeometry(Part.LineSegment(Vector(-47.082297, -89.888484, 0), Vector(-47.082297, -199.888484, 0)), False)  # 1
sketch3.addGeometry(Part.LineSegment(Vector(-47.082297, -199.888484, 0), Vector(-2.082297, -199.888484, 0)), False)  # 2
sketch3.addGeometry(Part.ArcOfCircle(Part.Circle(Vector(-2.082297, -144.888484, 0), Vector(0, 0, 1), 55), math.radians(-90), math.radians(90)), False)  # 3
add_polygon(sketch3, [(26.336988, -175.388484), (26.336988, -173.388484), (36.336988, -173.388484), (36.336988, -175.388484)])  # lines 4-7
sketch3.addGeometry(Part.Circle(Vector(18.836988, -169.388484, 0), Vector(0, 0, 1), 2.5), False)  # 8
sketch3.addGeometry(Part.Circle(Vector(-41.226076, -187.388484, 0), Vector(0, 0, 1), 2.5), False)  # 9
add_polygon(sketch3, [(26.336988, -116.388484), (26.336988, -114.388484), (36.336988, -114.388484), (36.336988, -116.388484)])  # lines 10-13
sketch3.addGeometry(Part.Circle(Vector(18.836988, -120.388484, 0), Vector(0, 0, 1), 2.5), False)  # 14
sketch3.addGeometry(Part.Circle(Vector(-41.226076, -102.388484, 0), Vector(0, 0, 1), 2.5), False)  # 15
sketch3.addConstraint([
    Sketcher.Constraint("Coincident", 0, 2, 1, 1),
    Sketcher.Constraint("Coincident", 1, 2, 2, 1),
    Sketcher.Constraint("Tangent", 2, 2, 3, 1),
    Sketcher.Constraint("Tangent", 3, 2, 0, 1),
    Sketcher.Constraint("Horizontal", 0),
    Sketcher.Constraint("Vertical", 1),
    Sketcher.Constraint("Horizontal", 2),
    Sketcher.Constraint("Vertical", 4),
    Sketcher.Constraint("Horizontal", 5),
    Sketcher.Constraint("Vertical", 6),
    Sketcher.Constraint("Horizontal", 7),
    Sketcher.Constraint("Vertical", 10),
    Sketcher.Constraint("Horizontal", 11),
    Sketcher.Constraint("Vertical", 12),
    Sketcher.Constraint("Horizontal", 13),
    Sketcher.Constraint("Equal", 8, 9),
    Sketcher.Constraint("Equal", 9, 14),
    Sketcher.Constraint("Equal", 14, 15),
    Sketcher.Constraint("Vertical", 8, 3, 14, 3),
    Sketcher.Constraint("Vertical", 9, 3, 15, 3),
    Sketcher.Constraint("Vertical", 7, 2, 10, 2),
    Sketcher.Constraint("Vertical", 6, 2, 11, 2),
    Sketcher.Constraint("Equal", 6, 10),
    Sketcher.Constraint("Diameter", 8, Q("5 mm")),
    Sketcher.Constraint("Radius", 3, Q("55 mm")),
    Sketcher.Constraint("DistanceX", 0, 2, 0, 1, Q("45 mm")),
    Sketcher.Constraint("DistanceX", 5, 1, 5, 2, Q("10 mm")),
    Sketcher.Constraint("DistanceY", 4, 1, 4, 2, Q("2 mm")),
    Sketcher.Constraint("DistanceY", 9, 3, 8, 3, Q("18 mm")),
    Sketcher.Constraint("DistanceY", 8, 3, 14, 3, Q("49 mm")),
    Sketcher.Constraint("DistanceY", 14, 3, 15, 3, Q("18 mm")),
    Sketcher.Constraint("DistanceY", 4, 2, 8, 3, Q("4 mm")),
    Sketcher.Constraint("DistanceY", 14, 3, 10, 2, Q("6 mm")),
    Sketcher.Constraint("DistanceY", 8, 3, 3, 3, Q("24.5 mm")),
    Sketcher.Constraint("DistanceX", 8, 3, 4, 2, Q("7.5 mm")),
    Sketcher.Constraint("DistanceX", 9, 3, 3, 3, Q("39.143779 mm")),
    Sketcher.Constraint("DistanceX", 3, 3, -1, 1, Q("2.082297 mm")),
    Sketcher.Constraint("DistanceY", 3, 3, -1, 1, Q("144.888484 mm")),
    Sketcher.Constraint("DistanceX", -1, 1, 8, 3, Q("18.836988 mm")),
])
pad3 = doc.addObject("PartDesign::Pad", "Pad002")
body3.addObject(pad3)
pad3.Profile = sketch3
pad3.Length = 20
body4 = doc.addObject("PartDesign::Body", "Body003")

# Sketch on XY plane
sketch4 = doc.addObject("Sketcher::SketchObject", "Sketch003")
body4.addObject(sketch4)
sketch4.AttachmentSupport = (doc.getObject("XY_Plane003"), [""])
sketch4.MapMode = "FlatFace"
add_polygon(sketch4, [(-44.357198, -59.679262), (-101.357198, -59.679262), (-101.357198, -64.679262), (-103.357198, -64.679262), (-103.357198, -74.679262), (-101.357198, -74.679262), (-101.357198, -79.679262), (-44.357198, -79.679262), (-44.357198, -74.679262), (-42.357198, -74.679262), (-42.357198, -64.679262), (-44.357198, -64.679262)])  # lines 0-11
add_polygon(sketch4, [(-85.357198, -73.866958), (-85.357198, -71.866958), (-60.357198, -71.866958), (-60.357198, -73.866958)])  # lines 12-15
sketch4.addGeometry(Part.Circle(Vector(-60.357198, -67.866958, 0), Vector(0, 0, 1), 2), False)  # 16
sketch4.addGeometry(Part.Circle(Vector(-85.357198, -67.866958, 0), Vector(0, 0, 1), 2), False)  # 17
sketch4.addConstraint([
    Sketcher.Constraint("Horizontal", 0),
    Sketcher.Constraint("Vertical", 1),
    Sketcher.Constraint("Horizontal", 2),
    Sketcher.Constraint("Vertical", 3),
    Sketcher.Constraint("Horizontal", 4),
    Sketcher.Constraint("Vertical", 5),
    Sketcher.Constraint("Horizontal", 6),
    Sketcher.Constraint("Vertical", 7),
    Sketcher.Constraint("Horizontal", 8),
    Sketcher.Constraint("Vertical", 9),
    Sketcher.Constraint("Horizontal", 10),
    Sketcher.Constraint("Vertical", 11),
    Sketcher.Constraint("Vertical", 12),
    Sketcher.Constraint("Horizontal", 13),
    Sketcher.Constraint("Vertical", 14),
    Sketcher.Constraint("Horizontal", 15),
    Sketcher.Constraint("Equal", 16, 17),
    Sketcher.Constraint("Horizontal", 16, 3, 17, 3),
    Sketcher.Constraint("Horizontal", 4, 2, 7, 2),
    Sketcher.Constraint("Horizontal", 2, 2, 9, 2),
    Sketcher.Constraint("Vertical", 1, 2, 4, 2),
    Sketcher.Constraint("Vertical", 7, 2, 10, 2),
    Sketcher.Constraint("Vertical", 17, 3, 12, 2),
    Sketcher.Constraint("Vertical", 16, 3, 13, 2),
    Sketcher.Constraint("Equal", 4, 8),
    Sketcher.Constraint("Equal", 1, 5),
    Sketcher.Constraint("Equal", 10, 12),
    Sketcher.Constraint("Diameter", 16, Q("4 mm")),
    Sketcher.Constraint("DistanceX", 0, 2, 0, 1, Q("57 mm")),
    Sketcher.Constraint("DistanceX", 2, 2, 2, 1, Q("2 mm")),
    Sketcher.Constraint("DistanceX", 13, 1, 13, 2, Q("25 mm")),
    Sketcher.Constraint("DistanceY", 1, 2, 1, 1, Q("5 mm")),
    Sketcher.Constraint("DistanceY", 3, 2, 3, 1, Q("10 mm")),
    Sketcher.Constraint("DistanceX", 0, 2, 17, 3, Q("16 mm")),
    Sketcher.Constraint("DistanceY", 12, 2, 17, 3, Q("4 mm")),
    Sketcher.Constraint("DistanceY", 0, 2, -1, 1, Q("59.679262 mm")),
    Sketcher.Constraint("DistanceX", 16, 3, -1, 1, Q("60.357198 mm")),
    Sketcher.Constraint("DistanceY", 16, 3, -1, 1, Q("67.866958 mm")),
])
pad4 = doc.addObject("PartDesign::Pad", "Pad003")
body4.addObject(pad4)
pad4.Profile = sketch4
pad4.Length = 20
body5 = doc.addObject("PartDesign::Body", "Body004")

# Sketch on XY plane
sketch5 = doc.addObject("Sketcher::SketchObject", "Sketch004")
body5.addObject(sketch5)
sketch5.AttachmentSupport = (doc.getObject("XY_Plane004"), [""])
sketch5.MapMode = "FlatFace"
add_polygon(sketch5, [(-64.412357, 34.071463), (-74.412357, 34.071463), (-74.412357, 36.071463), (-84.412357, 36.071463), (-84.412357, 34.071463), (-94.412357, 34.071463), (-94.412357, -35.928537), (-84.412357, -35.928537), (-84.412357, -37.928537), (-74.412357, -37.928537), (-74.412357, -35.928537), (-64.412357, -35.928537)])  # lines 0-11
sketch5.addGeometry(Part.Circle(Vector(-66.912357, -1.928537, 0), Vector(0, 0, 1), 2), False)  # 12
add_polygon(sketch5, [(-91.912357, 2.071463), (-91.912357, 4.071463), (-66.912357, 4.071463), (-66.912357, 2.071463)])  # lines 13-16
sketch5.addGeometry(Part.Circle(Vector(-91.912357, -1.928537, 0), Vector(0, 0, 1), 2), False)  # 17
add_polygon(sketch5, [(-80.412357, 16.071463), (-80.412357, 26.071463), (-78.412357, 26.071463), (-78.412357, 16.071463)])  # lines 18-21
sketch5.addConstraint([
    Sketcher.Constraint("Horizontal", 0),
    Sketcher.Constraint("Vertical", 1),
    Sketcher.Constraint("Horizontal", 2),
    Sketcher.Constraint("Vertical", 3),
    Sketcher.Constraint("Horizontal", 4),
    Sketcher.Constraint("Vertical", 5),
    Sketcher.Constraint("Horizontal", 6),
    Sketcher.Constraint("Vertical", 7),
    Sketcher.Constraint("Horizontal", 8),
    Sketcher.Constraint("Vertical", 9),
    Sketcher.Constraint("Horizontal", 10),
    Sketcher.Constraint("Vertical", 11),
    Sketcher.Constraint("Vertical", 13),
    Sketcher.Constraint("Horizontal", 14),
    Sketcher.Constraint("Vertical", 15),
    Sketcher.Constraint("Horizontal", 16),
    Sketcher.Constraint("Vertical", 18),
    Sketcher.Constraint("Horizontal", 19),
    Sketcher.Constraint("Vertical", 20),
    Sketcher.Constraint("Horizontal", 21),
    Sketcher.Constraint("Equal", 12, 17),
    Sketcher.Constraint("Horizontal", 12, 3, 17, 3),
    Sketcher.Constraint("Horizontal", 0, 2, 3, 2),
    Sketcher.Constraint("Horizontal", 6, 2, 9, 2),
    Sketcher.Constraint("Vertical", 3, 2, 6, 2),
    Sketcher.Constraint("Vertical", 1, 2, 8, 2),
    Sketcher.Constraint("Vertical", 17, 3, 13, 2),
    Sketcher.Constraint("Vertical", 12, 3, 14, 2),
    Sketcher.Constraint("Equal", 0, 2),
    Sketcher.Constraint("Equal", 2, 4),
    Sketcher.Constraint("Equal", 21, 1),
    Sketcher.Constraint("Equal", 3, 7),
    Sketcher.Constraint("Equal", 9, 13),
    Sketcher.Constraint("Equal", 10, 18),
    Sketcher.Constraint("Diameter", 12, Q("4 mm")),
    Sketcher.Constraint("DistanceX", 0, 2, 0, 1, Q("10 mm")),
    Sketcher.Constraint("DistanceX", 14, 1, 14, 2, Q("25 mm")),
    Sketcher.Constraint("DistanceX", 19, 1, 19, 2, Q("2 mm")),
    Sketcher.Constraint("DistanceY", 5, 2, 5, 1, Q("70 mm")),
    Sketcher.Constraint("DistanceY", 12, 3, 0, 2, Q("36 mm")),
    Sketcher.Constraint("DistanceY", 17, 3, 13, 2, Q("6 mm")),
    Sketcher.Constraint("DistanceX", 3, 2, 18, 2, Q("4 mm")),
    Sketcher.Constraint("DistanceY", 18, 2, 3, 2, Q("8 mm")),
    Sketcher.Constraint("DistanceX", 0, 2, 12, 3, Q("7.5 mm")),
    Sketcher.Constraint("DistanceX", 12, 3, -1, 1, Q("66.912357 mm")),
    Sketcher.Constraint("DistanceY", 12, 3, -1, 1, Q("1.928537 mm")),
])
pad5 = doc.addObject("PartDesign::Pad", "Pad004")
body5.addObject(pad5)
pad5.Profile = sketch5
pad5.Length = 20

doc.recompute()
